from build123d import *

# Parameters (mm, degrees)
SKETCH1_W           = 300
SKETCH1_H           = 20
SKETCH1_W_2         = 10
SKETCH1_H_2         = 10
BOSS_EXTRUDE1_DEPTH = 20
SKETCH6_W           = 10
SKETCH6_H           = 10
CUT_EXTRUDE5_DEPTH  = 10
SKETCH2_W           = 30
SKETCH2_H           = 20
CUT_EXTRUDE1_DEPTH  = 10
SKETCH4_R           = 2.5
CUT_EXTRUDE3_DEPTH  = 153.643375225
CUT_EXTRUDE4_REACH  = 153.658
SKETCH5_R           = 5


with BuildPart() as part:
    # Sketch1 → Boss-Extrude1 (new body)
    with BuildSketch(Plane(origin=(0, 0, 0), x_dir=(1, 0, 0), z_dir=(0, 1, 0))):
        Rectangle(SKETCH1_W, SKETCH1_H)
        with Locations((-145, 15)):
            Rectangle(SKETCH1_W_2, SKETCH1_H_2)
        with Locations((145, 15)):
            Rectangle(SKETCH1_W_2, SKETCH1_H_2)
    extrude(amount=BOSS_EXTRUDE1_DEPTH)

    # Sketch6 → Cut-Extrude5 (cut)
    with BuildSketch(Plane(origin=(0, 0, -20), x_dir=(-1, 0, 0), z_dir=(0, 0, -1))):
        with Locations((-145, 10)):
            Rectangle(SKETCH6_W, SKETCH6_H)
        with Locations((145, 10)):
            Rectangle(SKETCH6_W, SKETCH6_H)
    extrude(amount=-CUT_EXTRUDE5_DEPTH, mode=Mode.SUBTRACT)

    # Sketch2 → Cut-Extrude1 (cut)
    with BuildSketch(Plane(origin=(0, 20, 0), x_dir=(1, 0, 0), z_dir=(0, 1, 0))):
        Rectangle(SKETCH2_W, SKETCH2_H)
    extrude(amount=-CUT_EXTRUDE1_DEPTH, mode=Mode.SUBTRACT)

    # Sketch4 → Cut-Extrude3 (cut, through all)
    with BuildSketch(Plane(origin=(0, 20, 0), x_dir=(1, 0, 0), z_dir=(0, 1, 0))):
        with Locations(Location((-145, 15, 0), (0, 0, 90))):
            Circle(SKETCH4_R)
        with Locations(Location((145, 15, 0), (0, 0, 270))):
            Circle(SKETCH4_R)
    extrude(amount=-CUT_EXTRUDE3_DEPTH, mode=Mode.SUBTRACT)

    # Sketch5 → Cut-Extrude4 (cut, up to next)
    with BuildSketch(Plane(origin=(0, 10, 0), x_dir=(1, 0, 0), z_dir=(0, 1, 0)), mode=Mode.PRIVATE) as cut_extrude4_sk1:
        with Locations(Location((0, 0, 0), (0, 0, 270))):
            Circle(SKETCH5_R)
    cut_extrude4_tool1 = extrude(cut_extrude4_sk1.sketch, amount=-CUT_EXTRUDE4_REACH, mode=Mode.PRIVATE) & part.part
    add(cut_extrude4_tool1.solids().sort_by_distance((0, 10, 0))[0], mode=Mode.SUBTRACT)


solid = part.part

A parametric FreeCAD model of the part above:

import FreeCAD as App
import Part
import Sketcher

doc = App.newDocument("Part")
body = doc.addObject("PartDesign::Body", "Body")

sketch1 = body.newObject("Sketcher::SketchObject", "Sketch")
sketch1.AttachmentSupport = (doc.getObject("XZ_Plane"), [""])
sketch1.MapMode = "FlatFace"
sketch1.addGeometry(Part.LineSegment(App.Vector(-150, 10, 0), App.Vector(150, 10, 0)), False)
sketch1.addGeometry(Part.LineSegment(App.Vector(150, 10, 0), App.Vector(150, -20, 0)), False)
sketch1.addGeometry(Part.LineSegment(App.Vector(150, -20, 0), App.Vector(140, -20, 0)), False)
sketch1.addGeometry(Part.LineSegment(App.Vector(140, -20, 0), App.Vector(140, -10, 0)), False)
sketch1.addGeometry(Part.LineSegment(App.Vector(140, -10, 0), App.Vector(-140, -10, 0)), False)
sketch1.addGeometry(Part.LineSegment(App.Vector(-140, -10, 0), App.Vector(-140, -20, 0)), False)
sketch1.addGeometry(Part.LineSegment(App.Vector(-140, -20, 0), App.Vector(-150, -20, 0)), False)
sketch1.addGeometry(Part.LineSegment(App.Vector(-150, -20, 0), App.Vector(-150, 10, 0)), False)
sketch1.addConstraint(Sketcher.Constraint("Coincident", 0, 2, 1, 1))
sketch1.addConstraint(Sketcher.Constraint("Coincident", 1, 2, 2, 1))
sketch1.addConstraint(Sketcher.Constraint("Coincident", 2, 2, 3, 1))
sketch1.addConstraint(Sketcher.Constraint("Coincident", 3, 2, 4, 1))
sketch1.addConstraint(Sketcher.Constraint("Coincident", 4, 2, 5, 1))
sketch1.addConstraint(Sketcher.Constraint("Coincident", 5, 2, 6, 1))
sketch1.addConstraint(Sketcher.Constraint("Coincident", 6, 2, 7, 1))
sketch1.addConstraint(Sketcher.Constraint("Coincident", 7, 2, 0, 1))
sketch1.addConstraint(Sketcher.Constraint("Horizontal", 0))
sketch1.addConstraint(Sketcher.Constraint("Vertical", 1))
sketch1.addConstraint(Sketcher.Constraint("Horizontal", 2))
sketch1.addConstraint(Sketcher.Constraint("Vertical", 3))
sketch1.addConstraint(Sketcher.Constraint("Horizontal", 4))
sketch1.addConstraint(Sketcher.Constraint("Vertical", 5))
sketch1.addConstraint(Sketcher.Constraint("Horizontal", 6))
sketch1.addConstraint(Sketcher.Constraint("Vertical", 7))
sketch1.addConstraint(Sketcher.Constraint("Symmetric", 2, 2, 5, 2, -2))
sketch1.addConstraint(Sketcher.Constraint("Equal", 2, 6))
sketch1.addConstraint(Sketcher.Constraint("Equal", 6, 3))
sketch1.addConstraint(Sketcher.Constraint("DistanceX", 0, 1, 0, 2, 300.0))
sketch1.addConstraint(Sketcher.Constraint("DistanceX", 2, 2, 2, 1, 10.0))
sketch1.addConstraint(Sketcher.Constraint("DistanceY", 1, 2, 1, 1, 30.0))
sketch1.addConstraint(Sketcher.Constraint("DistanceY", -1, 1, 0, 2, 10.0))
pad1 = body.newObject("PartDesign::Pad", "Pad")
pad1.Profile = sketch1
pad1.Length = 20
pad1.Reversed = True

sketch2 = body.newObject("Sketcher::SketchObject", "Sketch001")
sketch2.AttachmentSupport = (doc.getObject("XY_Plane"), [""])
sketch2.MapMode = "FlatFace"
sketch2.AttachmentOffset = App.Placement(App.Vector(0, 0, -20), App.Rotation())
sketch2.addGeometry(Part.LineSegment(App.Vector(150, 15, 0), App.Vector(150, 5, 0)), False)
sketch2.addGeometry(Part.LineSegment(App.Vector(150, 5, 0), App.Vector(140, 5, 0)), False)
sketch2.addGeometry(Part.LineSegment(App.Vector(140, 5, 0), App.Vector(140, 15, 0)), False)
sketch2.addGeometry(Part.LineSegment(App.Vector(140, 15, 0), App.Vector(150, 15, 0)), False)
sketch2.addGeometry(Part.LineSegment(App.Vector(-140, 15, 0), App.Vector(-140, 5, 0)), False)
sketch2.addGeometry(Part.LineSegment(App.Vector(-140, 5, 0), App.Vector(-150, 5, 0)), False)
sketch2.addGeometry(Part.LineSegment(App.Vector(-150, 5, 0), App.Vector(-150, 15, 0)), False)
sketch2.addGeometry(Part.LineSegment(App.Vector(-150, 15, 0), App.Vector(-140, 15, 0)), False)
sketch2.addConstraint(Sketcher.Constraint("Coincident", 0, 2, 1, 1))
sketch2.addConstraint(Sketcher.Constraint("Coincident", 1, 2, 2, 1))
sketch2.addConstraint(Sketcher.Constraint("Coincident", 2, 2, 3, 1))
sketch2.addConstraint(Sketcher.Constraint("Coincident", 3, 2, 0, 1))
sketch2.addConstraint(Sketcher.Constraint("Coincident", 4, 2, 5, 1))
sketch2.addConstraint(Sketcher.Constraint("Coincident", 5, 2, 6, 1))
sketch2.addConstraint(Sketcher.Constraint("Coincident", 6, 2, 7, 1))
sketch2.addConstraint(Sketcher.Constraint("Coincident", 7, 2, 4, 1))
sketch2.addConstraint(Sketcher.Constraint("Vertical", 0))
sketch2.addConstraint(Sketcher.Constraint("Horizontal", 1))
sketch2.addConstraint(Sketcher.Constraint("Vertical", 2))
sketch2.addConstraint(Sketcher.Constraint("Horizontal", 3))
sketch2.addConstraint(Sketcher.Constraint("Vertical", 4))
sketch2.addConstraint(Sketcher.Constraint("Horizontal", 5))
sketch2.addConstraint(Sketcher.Constraint("Vertical", 6))
sketch2.addConstraint(Sketcher.Constraint("Horizontal", 7))
sketch2.addConstraint(Sketcher.Constraint("Symmetric", 1, 2, 4, 2, -2))
sketch2.addConstraint(Sketcher.Constraint("Symmetric", 3, 2, 6, 2, -2))
sketch2.addConstraint(Sketcher.Constraint("Equal", 7, 0))
sketch2.addConstraint(Sketcher.Constraint("DistanceX", 1, 2, 1, 1, 10.0))
sketch2.addConstraint(Sketcher.Constraint("DistanceX", -1, 1, 0, 2, 150.0))
sketch2.addConstraint(Sketcher.Constraint("DistanceY", -1, 1, 0, 2, 5.0))
pocket1 = body.newObject("PartDesign::Pocket", "Pocket")
pocket1.Profile = sketch2
pocket1.Length = 10
pocket1.Reversed = True

sketch3 = body.newObject("Sketcher::SketchObject", "Sketch002")
sketch3.AttachmentSupport = (doc.getObject("XZ_Plane"), [""])
sketch3.MapMode = "FlatFace"
sketch3.AttachmentOffset = App.Placement(App.Vector(0, 0, -20), App.Rotation())
sketch3.addGeometry(Part.LineSegment(App.Vector(-15, -10, 0), App.Vector(-15, 10, 0)), False)
sketch3.addGeometry(Part.LineSegment(App.Vector(-15, 10, 0), App.Vector(15, 10, 0)), False)
sketch3.addGeometry(Part.LineSegment(App.Vector(15, 10, 0), App.Vector(15, -10, 0)), False)
sketch3.addGeometry(Part.LineSegment(App.Vector(15, -10, 0), App.Vector(-15, -10, 0)), False)
sketch3.addConstraint(Sketcher.Constraint("Coincident", 0, 2, 1, 1))
sketch3.addConstraint(Sketcher.Constraint("Coincident", 1, 2, 2, 1))
sketch3.addConstraint(Sketcher.Constraint("Coincident", 2, 2, 3, 1))
sketch3.addConstraint(Sketcher.Constraint("Coincident", 3, 2, 0, 1))
sketch3.addConstraint(Sketcher.Constraint("Vertical", 0))
sketch3.addConstraint(Sketcher.Constraint("Horizontal", 1))
sketch3.addConstraint(Sketcher.Constraint("Vertical", 2))
sketch3.addConstraint(Sketcher.Constraint("Horizontal", 3))
sketch3.addConstraint(Sketcher.Constraint("Symmetric", 0, 2, 2, 2, -1, 1))
sketch3.addConstraint(Sketcher.Constraint("DistanceX", 1, 1, 1, 2, 30.0))
sketch3.addConstraint(Sketcher.Constraint("DistanceY", 0, 1, 0, 2, 20.0))
pocket2 = body.newObject("PartDesign::Pocket", "Pocket001")
pocket2.Profile = sketch3
pocket2.Length = 10
pocket2.Reversed = True

sketch4 = body.newObject("Sketcher::SketchObject", "Sketch003")
sketch4.AttachmentSupport = (doc.getObject("XZ_Plane"), [""])
sketch4.MapMode = "FlatFace"
sketch4.AttachmentOffset = App.Placement(App.Vector(0, 0, -20), App.Rotation())
sketch4.addGeometry(Part.Circle(App.Vector(-145, -15, 0), App.Vector(0, 0, 1), 2.5), False)
sketch4.addGeometry(Part.Circle(App.Vector(145, -15, 0), App.Vector(0, 0, 1), 2.5), False)
sketch4.addConstraint(Sketcher.Constraint("Equal", 0, 1))
sketch4.addConstraint(Sketcher.Constraint("Symmetric", 0, 3, 1, 3, -2))
sketch4.addConstraint(Sketcher.Constraint("Diameter", 0, 5.0))
sketch4.addConstraint(Sketcher.Constraint("DistanceX", 0, 3, -1, 1, 145.0))
sketch4.addConstraint(Sketcher.Constraint("DistanceY", 0, 3, -1, 1, 15.0))
pocket3 = body.newObject("PartDesign::Pocket", "Pocket002")
pocket3.Profile = sketch4
pocket3.Type = "ThroughAll"
pocket3.Reversed = True

sketch5 = body.newObject("Sketcher::SketchObject", "Sketch004")
sketch5.AttachmentSupport = (doc.getObject("XZ_Plane"), [""])
sketch5.MapMode = "FlatFace"
sketch5.AttachmentOffset = App.Placement(App.Vector(0, 0, -10), App.Rotation())
sketch5.addGeometry(Part.Circle(App.Vector(0, 0, 0), App.Vector(0, 0, 1), 5), False)
sketch5.addConstraint(Sketcher.Constraint("Coincident", 0, 3, -1, 1))
sketch5.addConstraint(Sketcher.Constraint("Diameter", 0, 10.0))
pocket4 = body.newObject("PartDesign::Pocket", "Pocket003")
pocket4.Profile = sketch5
pocket4.Type = "UpToFirst"
pocket4.Reversed = True

doc.recompute()
